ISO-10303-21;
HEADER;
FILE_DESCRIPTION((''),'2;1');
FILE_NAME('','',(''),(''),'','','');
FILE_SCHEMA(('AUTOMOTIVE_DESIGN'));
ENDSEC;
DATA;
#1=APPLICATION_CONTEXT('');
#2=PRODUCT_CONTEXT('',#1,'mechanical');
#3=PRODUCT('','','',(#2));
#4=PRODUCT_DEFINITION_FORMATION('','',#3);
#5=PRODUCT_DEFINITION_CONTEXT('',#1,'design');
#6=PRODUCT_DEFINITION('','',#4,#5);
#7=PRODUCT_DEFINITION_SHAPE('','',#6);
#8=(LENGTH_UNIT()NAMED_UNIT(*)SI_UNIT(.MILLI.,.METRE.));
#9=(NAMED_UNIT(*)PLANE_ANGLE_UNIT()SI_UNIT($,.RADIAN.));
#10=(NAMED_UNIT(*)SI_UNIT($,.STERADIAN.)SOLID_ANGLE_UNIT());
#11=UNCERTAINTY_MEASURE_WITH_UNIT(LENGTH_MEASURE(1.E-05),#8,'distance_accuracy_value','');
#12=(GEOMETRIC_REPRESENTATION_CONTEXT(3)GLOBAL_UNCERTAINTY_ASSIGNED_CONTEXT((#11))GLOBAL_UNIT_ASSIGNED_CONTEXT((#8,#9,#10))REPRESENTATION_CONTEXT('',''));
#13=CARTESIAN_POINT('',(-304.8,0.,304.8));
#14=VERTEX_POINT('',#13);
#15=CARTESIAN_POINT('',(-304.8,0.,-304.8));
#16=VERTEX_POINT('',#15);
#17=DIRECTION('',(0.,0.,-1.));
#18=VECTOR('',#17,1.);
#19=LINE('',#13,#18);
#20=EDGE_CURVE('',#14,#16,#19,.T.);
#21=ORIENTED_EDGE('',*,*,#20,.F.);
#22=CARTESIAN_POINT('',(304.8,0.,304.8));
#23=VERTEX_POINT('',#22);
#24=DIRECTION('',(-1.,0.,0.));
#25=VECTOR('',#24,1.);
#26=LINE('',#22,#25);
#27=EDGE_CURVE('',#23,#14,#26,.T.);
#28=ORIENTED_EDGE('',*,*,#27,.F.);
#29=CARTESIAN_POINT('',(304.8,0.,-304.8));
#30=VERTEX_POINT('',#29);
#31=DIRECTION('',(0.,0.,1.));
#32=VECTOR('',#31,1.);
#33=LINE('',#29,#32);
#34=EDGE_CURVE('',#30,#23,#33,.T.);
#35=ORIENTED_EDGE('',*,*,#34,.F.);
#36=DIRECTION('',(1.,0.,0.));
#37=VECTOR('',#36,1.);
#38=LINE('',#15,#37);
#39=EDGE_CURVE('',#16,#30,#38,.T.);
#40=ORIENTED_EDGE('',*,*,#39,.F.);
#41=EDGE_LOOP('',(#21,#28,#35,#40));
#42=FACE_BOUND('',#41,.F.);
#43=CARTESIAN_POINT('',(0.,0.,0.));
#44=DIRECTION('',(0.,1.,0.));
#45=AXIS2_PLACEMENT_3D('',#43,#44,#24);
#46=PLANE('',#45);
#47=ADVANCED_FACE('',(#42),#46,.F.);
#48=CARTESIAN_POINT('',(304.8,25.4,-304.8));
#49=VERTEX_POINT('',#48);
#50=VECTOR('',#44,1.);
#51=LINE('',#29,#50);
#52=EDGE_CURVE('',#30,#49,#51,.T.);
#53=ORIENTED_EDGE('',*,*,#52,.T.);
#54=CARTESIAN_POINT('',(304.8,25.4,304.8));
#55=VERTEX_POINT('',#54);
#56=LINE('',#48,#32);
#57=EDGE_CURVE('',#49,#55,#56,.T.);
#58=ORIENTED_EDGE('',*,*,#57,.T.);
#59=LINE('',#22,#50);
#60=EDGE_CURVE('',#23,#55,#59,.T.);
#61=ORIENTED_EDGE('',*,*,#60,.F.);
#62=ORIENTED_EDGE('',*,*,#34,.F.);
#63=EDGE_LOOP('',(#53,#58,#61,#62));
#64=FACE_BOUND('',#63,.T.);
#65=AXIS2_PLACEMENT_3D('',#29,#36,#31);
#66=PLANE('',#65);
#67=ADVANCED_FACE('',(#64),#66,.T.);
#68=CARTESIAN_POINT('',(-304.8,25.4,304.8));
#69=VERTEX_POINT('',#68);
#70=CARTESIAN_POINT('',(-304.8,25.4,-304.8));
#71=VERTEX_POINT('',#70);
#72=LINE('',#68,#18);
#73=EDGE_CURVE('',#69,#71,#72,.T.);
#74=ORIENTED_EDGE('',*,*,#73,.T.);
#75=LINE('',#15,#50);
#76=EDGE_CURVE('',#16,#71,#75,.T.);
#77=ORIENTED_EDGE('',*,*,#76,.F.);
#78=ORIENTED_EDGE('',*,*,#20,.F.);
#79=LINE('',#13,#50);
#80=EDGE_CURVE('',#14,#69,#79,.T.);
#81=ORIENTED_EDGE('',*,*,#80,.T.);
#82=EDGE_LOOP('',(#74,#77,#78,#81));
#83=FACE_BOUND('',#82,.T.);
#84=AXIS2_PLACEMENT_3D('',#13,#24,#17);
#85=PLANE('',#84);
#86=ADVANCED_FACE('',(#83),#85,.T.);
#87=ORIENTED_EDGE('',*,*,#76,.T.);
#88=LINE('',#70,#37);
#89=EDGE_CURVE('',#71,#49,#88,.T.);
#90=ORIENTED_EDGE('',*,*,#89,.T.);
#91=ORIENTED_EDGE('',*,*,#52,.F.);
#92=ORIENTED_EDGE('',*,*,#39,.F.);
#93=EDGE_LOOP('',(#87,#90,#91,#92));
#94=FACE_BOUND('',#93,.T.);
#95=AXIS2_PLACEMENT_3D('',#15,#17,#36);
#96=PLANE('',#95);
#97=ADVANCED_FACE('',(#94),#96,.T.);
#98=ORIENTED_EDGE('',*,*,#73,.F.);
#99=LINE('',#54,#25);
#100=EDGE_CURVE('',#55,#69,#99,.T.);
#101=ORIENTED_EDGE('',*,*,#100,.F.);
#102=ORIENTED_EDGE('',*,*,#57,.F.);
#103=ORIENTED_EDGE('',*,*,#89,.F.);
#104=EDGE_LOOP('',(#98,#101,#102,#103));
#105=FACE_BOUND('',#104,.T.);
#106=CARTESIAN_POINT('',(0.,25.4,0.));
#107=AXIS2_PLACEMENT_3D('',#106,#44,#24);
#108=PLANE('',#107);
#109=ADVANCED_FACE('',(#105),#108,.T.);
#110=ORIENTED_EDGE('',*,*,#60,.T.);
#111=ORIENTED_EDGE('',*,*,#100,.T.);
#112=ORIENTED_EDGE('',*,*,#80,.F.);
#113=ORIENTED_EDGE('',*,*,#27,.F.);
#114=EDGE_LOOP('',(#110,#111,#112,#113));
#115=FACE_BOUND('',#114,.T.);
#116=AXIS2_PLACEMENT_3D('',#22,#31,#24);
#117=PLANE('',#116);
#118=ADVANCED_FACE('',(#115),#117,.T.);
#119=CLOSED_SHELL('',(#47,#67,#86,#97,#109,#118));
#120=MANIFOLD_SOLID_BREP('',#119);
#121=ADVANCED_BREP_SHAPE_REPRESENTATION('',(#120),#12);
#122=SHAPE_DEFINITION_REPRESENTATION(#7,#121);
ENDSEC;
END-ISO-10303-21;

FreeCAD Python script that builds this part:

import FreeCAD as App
import Part
import Sketcher
from FreeCAD import Vector
Q = App.Units.Quantity

doc = App.newDocument("Part")
body = doc.addObject("PartDesign::Body", "Body")

sketch1 = body.newObject("Sketcher::SketchObject", "Sketch")
sketch1.AttachmentSupport = (doc.getObject("XZ_Plane"), [""])
sketch1.MapMode = "FlatFace"
sketch1.addGeometry(Part.LineSegment(Vector(305, -305, 0), Vector(-305, -305, 0)), False)
sketch1.addGeometry(Part.LineSegment(Vector(-305, -305, 0), Vector(-305, 305, 0)), False)
sketch1.addGeometry(Part.LineSegment(Vector(-305, 305, 0), Vector(305, 305, 0)), False)
sketch1.addGeometry(Part.LineSegment(Vector(305, 305, 0), Vector(305, -305, 0)), False)
sketch1.addConstraint(Sketcher.Constraint("Coincident", 0, 2, 1, 1))
sketch1.addConstraint(Sketcher.Constraint("Coincident", 1, 2, 2, 1))
sketch1.addConstraint(Sketcher.Constraint("Coincident", 2, 2, 3, 1))
sketch1.addConstraint(Sketcher.Constraint("Coincident", 3, 2, 0, 1))
sketch1.addConstraint(Sketcher.Constraint("Horizontal", 0))
sketch1.addConstraint(Sketcher.Constraint("Vertical", 1))
sketch1.addConstraint(Sketcher.Constraint("Horizontal", 2))
sketch1.addConstraint(Sketcher.Constraint("Vertical", 3))
sketch1.addConstraint(Sketcher.Constraint("Symmetric", 0, 2, 2, 2, -1, 1))
sketch1.addConstraint(Sketcher.Constraint("Equal", 2, 1))
sketch1.addConstraint(Sketcher.Constraint("DistanceX", 0, 2, 0, 1, Q("24 in")))
pad1 = body.newObject("PartDesign::Pad", "Pad")
pad1.Profile = sketch1
pad1.Length = Q("1 in")
pad1.Reversed = True

doc.recompute()
